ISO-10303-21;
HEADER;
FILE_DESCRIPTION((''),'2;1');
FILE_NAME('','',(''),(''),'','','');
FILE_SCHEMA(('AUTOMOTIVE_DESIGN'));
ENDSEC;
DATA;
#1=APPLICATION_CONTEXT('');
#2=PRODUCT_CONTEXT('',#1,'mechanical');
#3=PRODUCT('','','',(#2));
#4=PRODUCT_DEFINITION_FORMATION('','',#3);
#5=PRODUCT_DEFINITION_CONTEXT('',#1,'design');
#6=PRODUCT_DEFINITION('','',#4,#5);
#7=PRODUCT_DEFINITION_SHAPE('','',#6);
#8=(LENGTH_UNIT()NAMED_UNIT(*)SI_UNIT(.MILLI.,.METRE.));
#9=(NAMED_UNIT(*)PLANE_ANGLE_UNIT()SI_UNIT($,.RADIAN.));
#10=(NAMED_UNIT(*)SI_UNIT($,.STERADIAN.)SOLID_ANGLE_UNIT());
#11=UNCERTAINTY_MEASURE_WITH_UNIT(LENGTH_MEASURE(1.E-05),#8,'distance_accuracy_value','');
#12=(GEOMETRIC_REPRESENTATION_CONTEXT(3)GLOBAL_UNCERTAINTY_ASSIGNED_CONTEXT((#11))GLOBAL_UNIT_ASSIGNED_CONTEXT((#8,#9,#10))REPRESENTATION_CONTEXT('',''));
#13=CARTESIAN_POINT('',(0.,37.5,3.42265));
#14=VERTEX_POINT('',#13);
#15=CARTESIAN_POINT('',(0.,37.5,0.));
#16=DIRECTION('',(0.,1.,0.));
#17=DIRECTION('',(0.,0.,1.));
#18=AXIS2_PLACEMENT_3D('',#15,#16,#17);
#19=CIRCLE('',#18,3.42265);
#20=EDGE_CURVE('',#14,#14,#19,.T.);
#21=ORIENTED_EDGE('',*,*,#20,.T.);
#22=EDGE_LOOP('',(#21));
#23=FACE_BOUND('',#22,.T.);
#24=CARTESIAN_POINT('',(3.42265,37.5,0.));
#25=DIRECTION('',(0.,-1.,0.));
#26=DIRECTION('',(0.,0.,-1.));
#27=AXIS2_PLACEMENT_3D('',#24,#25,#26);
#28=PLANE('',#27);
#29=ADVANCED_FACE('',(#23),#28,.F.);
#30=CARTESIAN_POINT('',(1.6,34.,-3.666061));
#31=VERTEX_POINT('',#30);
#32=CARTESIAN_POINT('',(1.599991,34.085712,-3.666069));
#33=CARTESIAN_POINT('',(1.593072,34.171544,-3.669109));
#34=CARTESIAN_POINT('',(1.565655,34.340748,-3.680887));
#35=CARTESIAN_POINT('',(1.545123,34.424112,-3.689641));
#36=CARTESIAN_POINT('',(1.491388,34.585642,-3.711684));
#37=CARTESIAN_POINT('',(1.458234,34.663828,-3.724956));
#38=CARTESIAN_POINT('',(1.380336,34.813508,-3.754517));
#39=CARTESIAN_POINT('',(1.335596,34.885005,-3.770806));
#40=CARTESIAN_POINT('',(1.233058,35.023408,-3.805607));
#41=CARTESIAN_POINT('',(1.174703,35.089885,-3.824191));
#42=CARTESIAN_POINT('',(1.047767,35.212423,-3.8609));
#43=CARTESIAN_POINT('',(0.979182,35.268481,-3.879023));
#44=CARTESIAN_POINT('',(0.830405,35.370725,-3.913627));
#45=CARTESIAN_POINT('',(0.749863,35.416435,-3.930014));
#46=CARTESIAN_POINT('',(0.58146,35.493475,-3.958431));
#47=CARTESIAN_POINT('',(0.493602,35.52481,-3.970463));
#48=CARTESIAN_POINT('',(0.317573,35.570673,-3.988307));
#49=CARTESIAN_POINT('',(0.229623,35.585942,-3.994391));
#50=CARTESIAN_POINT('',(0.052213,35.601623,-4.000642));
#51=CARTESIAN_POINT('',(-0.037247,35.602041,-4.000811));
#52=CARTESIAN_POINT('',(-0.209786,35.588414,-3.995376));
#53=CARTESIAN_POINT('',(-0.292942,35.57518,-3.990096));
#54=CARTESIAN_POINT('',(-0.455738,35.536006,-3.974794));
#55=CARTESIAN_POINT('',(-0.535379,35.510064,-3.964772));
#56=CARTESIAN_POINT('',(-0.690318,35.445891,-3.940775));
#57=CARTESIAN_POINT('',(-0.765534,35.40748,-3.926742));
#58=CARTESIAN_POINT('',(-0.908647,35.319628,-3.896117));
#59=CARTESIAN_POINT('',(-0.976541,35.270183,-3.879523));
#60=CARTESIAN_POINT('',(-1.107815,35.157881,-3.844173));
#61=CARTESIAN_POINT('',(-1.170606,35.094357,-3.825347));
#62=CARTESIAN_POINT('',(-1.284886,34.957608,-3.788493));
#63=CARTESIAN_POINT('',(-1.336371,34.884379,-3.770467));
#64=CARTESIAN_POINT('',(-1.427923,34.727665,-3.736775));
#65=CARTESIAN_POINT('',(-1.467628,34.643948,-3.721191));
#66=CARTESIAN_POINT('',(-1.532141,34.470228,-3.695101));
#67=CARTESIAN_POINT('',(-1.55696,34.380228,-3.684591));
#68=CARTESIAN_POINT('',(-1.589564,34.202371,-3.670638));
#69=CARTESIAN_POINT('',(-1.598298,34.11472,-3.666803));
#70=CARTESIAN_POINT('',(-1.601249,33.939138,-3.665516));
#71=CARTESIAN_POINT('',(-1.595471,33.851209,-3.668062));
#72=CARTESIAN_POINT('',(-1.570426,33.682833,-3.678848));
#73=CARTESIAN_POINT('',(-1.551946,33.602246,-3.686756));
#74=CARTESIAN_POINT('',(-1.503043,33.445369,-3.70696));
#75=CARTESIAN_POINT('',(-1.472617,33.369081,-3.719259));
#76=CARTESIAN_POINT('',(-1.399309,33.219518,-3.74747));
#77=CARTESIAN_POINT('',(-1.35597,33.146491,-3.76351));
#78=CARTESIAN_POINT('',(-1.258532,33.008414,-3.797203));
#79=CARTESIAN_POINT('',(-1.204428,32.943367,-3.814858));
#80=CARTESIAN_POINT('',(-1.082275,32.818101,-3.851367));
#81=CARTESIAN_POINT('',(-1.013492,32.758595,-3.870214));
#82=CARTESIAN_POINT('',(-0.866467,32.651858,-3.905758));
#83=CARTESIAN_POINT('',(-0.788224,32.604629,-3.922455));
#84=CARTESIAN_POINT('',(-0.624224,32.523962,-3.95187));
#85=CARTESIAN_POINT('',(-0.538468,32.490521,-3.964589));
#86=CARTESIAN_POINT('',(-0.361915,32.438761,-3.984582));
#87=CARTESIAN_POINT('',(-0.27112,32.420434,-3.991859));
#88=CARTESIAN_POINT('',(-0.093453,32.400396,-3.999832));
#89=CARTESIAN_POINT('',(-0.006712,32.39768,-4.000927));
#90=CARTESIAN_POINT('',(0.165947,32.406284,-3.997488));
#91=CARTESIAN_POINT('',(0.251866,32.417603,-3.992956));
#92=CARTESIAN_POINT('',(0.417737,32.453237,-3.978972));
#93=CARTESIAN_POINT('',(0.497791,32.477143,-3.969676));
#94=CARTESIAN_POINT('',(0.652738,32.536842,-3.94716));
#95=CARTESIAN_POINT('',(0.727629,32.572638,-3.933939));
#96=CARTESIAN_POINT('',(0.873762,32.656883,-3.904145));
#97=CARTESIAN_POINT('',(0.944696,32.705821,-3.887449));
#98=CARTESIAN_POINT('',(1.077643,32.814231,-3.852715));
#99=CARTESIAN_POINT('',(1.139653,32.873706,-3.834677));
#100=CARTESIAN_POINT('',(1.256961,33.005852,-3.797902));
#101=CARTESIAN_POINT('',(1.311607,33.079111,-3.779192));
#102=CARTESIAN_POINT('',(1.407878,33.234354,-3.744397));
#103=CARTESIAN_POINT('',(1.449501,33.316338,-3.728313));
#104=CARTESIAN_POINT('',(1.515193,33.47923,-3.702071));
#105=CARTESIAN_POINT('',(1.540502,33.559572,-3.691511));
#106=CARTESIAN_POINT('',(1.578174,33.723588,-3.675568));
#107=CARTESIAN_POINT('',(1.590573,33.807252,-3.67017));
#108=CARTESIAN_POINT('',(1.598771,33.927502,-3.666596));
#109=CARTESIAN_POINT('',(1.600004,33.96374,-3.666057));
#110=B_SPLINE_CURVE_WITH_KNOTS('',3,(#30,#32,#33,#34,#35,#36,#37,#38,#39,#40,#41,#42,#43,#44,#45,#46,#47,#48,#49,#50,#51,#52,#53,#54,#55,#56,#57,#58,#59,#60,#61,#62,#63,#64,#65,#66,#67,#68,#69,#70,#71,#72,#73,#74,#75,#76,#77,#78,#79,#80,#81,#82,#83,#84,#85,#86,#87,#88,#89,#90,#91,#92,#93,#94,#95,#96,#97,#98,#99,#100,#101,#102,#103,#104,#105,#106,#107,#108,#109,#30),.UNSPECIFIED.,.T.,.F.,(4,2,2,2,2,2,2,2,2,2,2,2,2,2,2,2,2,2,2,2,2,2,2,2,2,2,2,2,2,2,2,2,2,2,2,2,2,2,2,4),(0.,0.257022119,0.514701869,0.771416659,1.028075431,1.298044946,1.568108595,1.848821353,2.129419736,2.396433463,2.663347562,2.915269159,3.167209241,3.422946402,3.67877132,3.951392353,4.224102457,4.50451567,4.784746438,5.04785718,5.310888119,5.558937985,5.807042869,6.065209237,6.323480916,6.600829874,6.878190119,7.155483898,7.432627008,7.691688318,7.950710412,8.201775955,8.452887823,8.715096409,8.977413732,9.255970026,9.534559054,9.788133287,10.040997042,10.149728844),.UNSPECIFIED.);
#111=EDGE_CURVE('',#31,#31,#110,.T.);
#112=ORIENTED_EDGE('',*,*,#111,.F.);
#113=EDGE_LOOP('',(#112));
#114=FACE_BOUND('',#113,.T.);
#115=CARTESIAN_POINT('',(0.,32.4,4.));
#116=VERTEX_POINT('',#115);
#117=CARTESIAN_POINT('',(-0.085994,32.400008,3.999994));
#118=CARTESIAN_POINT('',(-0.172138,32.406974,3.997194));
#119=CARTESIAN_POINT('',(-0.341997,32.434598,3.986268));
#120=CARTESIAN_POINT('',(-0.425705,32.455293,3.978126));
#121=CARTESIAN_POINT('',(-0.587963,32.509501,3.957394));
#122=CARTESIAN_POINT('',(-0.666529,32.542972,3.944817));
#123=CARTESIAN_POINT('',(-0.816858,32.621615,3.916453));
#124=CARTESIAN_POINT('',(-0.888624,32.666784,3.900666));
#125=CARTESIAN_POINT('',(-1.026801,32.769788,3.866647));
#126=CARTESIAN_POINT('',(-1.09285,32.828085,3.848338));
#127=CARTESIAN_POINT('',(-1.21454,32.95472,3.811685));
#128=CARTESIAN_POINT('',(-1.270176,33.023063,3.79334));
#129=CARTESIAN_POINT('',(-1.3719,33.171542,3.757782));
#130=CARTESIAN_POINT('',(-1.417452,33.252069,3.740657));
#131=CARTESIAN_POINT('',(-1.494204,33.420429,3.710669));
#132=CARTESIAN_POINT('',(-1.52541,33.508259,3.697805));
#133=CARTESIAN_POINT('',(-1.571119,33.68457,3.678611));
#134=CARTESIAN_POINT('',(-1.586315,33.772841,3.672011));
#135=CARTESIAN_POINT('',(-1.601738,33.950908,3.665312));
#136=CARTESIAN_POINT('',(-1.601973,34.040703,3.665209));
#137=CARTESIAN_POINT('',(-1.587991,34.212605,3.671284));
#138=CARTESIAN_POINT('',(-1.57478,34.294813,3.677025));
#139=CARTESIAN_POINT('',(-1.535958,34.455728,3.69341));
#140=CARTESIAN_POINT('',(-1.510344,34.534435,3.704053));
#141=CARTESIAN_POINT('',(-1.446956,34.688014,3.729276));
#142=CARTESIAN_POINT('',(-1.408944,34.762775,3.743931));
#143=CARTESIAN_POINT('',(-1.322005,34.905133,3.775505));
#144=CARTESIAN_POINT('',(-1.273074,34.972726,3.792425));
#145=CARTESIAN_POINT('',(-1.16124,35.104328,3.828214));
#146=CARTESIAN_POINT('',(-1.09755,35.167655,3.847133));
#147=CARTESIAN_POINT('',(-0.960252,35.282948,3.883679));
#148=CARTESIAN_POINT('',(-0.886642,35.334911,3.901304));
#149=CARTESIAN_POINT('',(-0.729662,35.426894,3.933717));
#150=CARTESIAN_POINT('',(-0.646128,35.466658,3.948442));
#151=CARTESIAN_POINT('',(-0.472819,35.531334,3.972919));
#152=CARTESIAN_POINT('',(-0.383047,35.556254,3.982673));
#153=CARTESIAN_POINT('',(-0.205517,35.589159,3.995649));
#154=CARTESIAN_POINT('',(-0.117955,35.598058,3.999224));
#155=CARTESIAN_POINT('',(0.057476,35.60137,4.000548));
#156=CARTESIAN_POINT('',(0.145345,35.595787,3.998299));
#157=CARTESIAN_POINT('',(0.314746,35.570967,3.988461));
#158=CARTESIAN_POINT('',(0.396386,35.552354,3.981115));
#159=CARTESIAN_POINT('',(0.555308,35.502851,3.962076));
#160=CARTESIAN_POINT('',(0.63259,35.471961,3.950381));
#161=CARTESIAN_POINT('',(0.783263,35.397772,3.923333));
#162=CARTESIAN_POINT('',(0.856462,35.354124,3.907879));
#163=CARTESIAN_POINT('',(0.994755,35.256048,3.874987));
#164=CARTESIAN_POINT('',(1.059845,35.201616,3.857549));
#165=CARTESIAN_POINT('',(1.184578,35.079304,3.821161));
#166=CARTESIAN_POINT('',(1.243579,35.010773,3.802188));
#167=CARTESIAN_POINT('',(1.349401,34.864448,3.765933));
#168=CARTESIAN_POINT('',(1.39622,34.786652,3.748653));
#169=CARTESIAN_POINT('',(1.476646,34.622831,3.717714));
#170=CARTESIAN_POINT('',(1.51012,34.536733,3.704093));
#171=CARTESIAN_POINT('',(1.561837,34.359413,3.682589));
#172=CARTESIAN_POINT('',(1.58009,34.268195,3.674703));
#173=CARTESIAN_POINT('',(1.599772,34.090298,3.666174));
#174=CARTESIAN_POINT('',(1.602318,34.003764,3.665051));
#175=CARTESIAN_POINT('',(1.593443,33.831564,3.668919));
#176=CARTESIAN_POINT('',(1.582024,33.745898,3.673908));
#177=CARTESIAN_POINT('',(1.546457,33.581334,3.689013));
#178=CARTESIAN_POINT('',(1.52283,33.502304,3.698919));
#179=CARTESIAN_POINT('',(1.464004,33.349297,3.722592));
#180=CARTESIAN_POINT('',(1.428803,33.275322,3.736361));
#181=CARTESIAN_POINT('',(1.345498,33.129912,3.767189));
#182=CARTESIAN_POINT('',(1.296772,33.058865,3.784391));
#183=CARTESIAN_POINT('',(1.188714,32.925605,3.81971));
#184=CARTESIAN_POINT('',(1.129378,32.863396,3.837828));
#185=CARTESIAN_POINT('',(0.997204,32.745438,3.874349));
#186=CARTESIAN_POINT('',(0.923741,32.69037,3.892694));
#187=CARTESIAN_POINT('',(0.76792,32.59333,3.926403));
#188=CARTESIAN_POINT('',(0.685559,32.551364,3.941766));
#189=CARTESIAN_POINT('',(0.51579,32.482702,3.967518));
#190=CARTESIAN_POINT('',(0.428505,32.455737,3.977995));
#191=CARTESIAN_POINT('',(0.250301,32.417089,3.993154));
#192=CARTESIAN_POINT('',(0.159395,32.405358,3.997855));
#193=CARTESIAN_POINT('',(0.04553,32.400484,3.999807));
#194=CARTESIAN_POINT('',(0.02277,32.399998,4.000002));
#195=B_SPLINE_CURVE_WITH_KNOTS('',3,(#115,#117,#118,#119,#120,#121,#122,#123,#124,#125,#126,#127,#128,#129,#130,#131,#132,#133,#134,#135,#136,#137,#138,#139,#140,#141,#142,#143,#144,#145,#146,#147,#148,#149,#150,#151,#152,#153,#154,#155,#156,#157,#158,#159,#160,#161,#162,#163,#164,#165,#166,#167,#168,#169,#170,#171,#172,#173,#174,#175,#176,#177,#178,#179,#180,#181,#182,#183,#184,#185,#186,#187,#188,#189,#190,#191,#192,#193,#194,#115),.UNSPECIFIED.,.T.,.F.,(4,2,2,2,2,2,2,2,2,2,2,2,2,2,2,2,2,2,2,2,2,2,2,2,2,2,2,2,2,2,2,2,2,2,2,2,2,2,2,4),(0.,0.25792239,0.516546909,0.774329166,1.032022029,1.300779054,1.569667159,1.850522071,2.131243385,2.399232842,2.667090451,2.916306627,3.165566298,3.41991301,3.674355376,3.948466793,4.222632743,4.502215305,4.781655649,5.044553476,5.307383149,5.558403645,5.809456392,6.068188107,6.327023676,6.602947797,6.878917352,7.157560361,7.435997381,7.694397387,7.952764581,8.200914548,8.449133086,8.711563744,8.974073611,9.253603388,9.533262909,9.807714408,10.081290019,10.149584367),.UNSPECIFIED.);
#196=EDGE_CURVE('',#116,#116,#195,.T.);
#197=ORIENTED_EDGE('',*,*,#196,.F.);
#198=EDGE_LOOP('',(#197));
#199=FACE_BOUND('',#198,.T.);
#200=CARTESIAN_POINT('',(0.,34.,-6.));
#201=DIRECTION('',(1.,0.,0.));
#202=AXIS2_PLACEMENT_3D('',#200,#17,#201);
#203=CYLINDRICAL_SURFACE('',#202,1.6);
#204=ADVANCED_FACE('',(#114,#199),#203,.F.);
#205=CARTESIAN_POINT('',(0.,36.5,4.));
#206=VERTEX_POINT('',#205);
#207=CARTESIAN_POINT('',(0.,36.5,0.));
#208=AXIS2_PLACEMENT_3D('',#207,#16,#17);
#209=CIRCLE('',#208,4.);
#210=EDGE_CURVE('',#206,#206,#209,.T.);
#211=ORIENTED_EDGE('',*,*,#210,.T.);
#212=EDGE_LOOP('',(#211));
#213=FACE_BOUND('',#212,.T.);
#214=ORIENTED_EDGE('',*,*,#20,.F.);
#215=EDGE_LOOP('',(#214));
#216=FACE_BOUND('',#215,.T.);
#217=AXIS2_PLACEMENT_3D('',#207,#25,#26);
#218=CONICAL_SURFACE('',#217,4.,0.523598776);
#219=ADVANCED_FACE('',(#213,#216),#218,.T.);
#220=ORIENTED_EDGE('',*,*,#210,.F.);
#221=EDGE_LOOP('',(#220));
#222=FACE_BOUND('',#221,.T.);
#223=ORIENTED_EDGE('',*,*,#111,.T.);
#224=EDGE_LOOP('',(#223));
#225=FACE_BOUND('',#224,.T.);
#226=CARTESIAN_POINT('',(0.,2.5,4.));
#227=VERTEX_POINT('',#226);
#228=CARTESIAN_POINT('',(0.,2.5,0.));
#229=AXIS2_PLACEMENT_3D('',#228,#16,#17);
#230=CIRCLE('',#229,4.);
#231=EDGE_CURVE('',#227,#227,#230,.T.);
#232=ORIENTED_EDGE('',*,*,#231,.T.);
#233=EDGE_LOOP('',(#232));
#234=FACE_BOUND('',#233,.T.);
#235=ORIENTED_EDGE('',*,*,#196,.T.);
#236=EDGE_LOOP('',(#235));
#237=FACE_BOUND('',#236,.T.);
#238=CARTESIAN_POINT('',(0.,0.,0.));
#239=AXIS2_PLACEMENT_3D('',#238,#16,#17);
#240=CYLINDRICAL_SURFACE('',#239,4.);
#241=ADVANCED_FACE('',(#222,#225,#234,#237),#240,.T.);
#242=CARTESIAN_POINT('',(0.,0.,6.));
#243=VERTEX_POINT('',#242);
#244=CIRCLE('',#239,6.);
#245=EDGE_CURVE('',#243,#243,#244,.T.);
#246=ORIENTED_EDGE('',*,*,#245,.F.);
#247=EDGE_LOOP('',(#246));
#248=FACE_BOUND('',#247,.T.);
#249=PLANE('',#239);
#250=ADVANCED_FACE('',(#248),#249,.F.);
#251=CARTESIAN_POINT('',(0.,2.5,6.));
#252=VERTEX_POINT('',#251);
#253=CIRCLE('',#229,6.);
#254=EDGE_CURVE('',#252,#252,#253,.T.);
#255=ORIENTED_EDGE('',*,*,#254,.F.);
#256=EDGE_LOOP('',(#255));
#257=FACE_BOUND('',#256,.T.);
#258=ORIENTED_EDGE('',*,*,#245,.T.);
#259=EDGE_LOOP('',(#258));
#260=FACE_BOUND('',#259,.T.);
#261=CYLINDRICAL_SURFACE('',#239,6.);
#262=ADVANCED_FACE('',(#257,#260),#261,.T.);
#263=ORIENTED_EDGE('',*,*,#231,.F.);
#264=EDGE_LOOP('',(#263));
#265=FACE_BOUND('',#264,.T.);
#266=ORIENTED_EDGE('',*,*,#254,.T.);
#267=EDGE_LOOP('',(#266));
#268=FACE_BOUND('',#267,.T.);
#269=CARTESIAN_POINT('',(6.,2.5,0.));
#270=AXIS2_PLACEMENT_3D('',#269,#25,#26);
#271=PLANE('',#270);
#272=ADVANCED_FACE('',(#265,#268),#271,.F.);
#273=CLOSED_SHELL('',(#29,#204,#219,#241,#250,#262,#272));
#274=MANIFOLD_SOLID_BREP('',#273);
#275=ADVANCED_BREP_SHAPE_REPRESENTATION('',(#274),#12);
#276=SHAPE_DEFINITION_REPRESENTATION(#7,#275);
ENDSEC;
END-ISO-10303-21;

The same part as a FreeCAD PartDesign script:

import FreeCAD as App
import Part
import Sketcher
from FreeCAD import Vector
Q = App.Units.Quantity

doc = App.newDocument("Part")
body = doc.addObject("PartDesign::Body", "Body")

# Sketch on XY plane
sketch1 = body.newObject("Sketcher::SketchObject", "Sketch")
sketch1.AttachmentSupport = (doc.getObject("XY_Plane"), [""])
sketch1.MapMode = "FlatFace"
sketch1.addGeometry(Part.LineSegment(Vector(0, 0, 0), Vector(6, 0, 0)), False)
sketch1.addGeometry(Part.LineSegment(Vector(6, 0, 0), Vector(6, 2.5, 0)), False)
sketch1.addGeometry(Part.LineSegment(Vector(6, 2.5, 0), Vector(4, 2.5, 0)), False)
sketch1.addGeometry(Part.LineSegment(Vector(4, 2.5, 0), Vector(4, 36.5, 0)), False)
sketch1.addGeometry(Part.LineSegment(Vector(4, 36.5, 0), Vector(3.42265, 37.5, 0)), False)
sketch1.addGeometry(Part.LineSegment(Vector(3.42265, 37.5, 0), Vector(0, 37.5, 0)), False)
sketch1.addGeometry(Part.LineSegment(Vector(0, 37.5, 0), Vector(0, 0, 0)), False)
sketch1.addConstraint(Sketcher.Constraint("Coincident", 0, 2, 1, 1))
sketch1.addConstraint(Sketcher.Constraint("Coincident", 1, 2, 2, 1))
sketch1.addConstraint(Sketcher.Constraint("Coincident", 2, 2, 3, 1))
sketch1.addConstraint(Sketcher.Constraint("Coincident", 3, 2, 4, 1))
sketch1.addConstraint(Sketcher.Constraint("Coincident", 4, 2, 5, 1))
sketch1.addConstraint(Sketcher.Constraint("Coincident", 5, 2, 6, 1))
sketch1.addConstraint(Sketcher.Constraint("Coincident", 6, 2, 0, 1))
sketch1.addConstraint(Sketcher.Constraint("Horizontal", 0))
sketch1.addConstraint(Sketcher.Constraint("Vertical", 1))
sketch1.addConstraint(Sketcher.Constraint("Horizontal", 2))
sketch1.addConstraint(Sketcher.Constraint("Vertical", 3))
sketch1.addConstraint(Sketcher.Constraint("Horizontal", 5))
sketch1.addConstraint(Sketcher.Constraint("Vertical", 6))
sketch1.addConstraint(Sketcher.Constraint("Coincident", 6, 2, -1, 1))
sketch1.addConstraint(Sketcher.Constraint("DistanceX", 0, 1, 0, 2, 6.0))
sketch1.addConstraint(Sketcher.Constraint("DistanceX", 2, 2, 2, 1, 2.0))
sketch1.addConstraint(Sketcher.Constraint("DistanceY", 3, 1, 3, 2, 34.0))
sketch1.addConstraint(Sketcher.Constraint("Angle", 4, Q("120 deg")))
sketch1.addConstraint(Sketcher.Constraint("DistanceY", 1, 1, 1, 2, 2.5))
sketch1.addConstraint(Sketcher.Constraint("DistanceY", 6, 2, 6, 1, 37.5))
revolution = body.newObject("PartDesign::Revolution", "Revolution")
revolution.Profile = sketch1
revolution.ReferenceAxis = (sketch1, ["V_Axis"])
revolution.Angle = 360

# Sketch on XY plane
sketch2 = body.newObject("Sketcher::SketchObject", "Sketch001")
sketch2.AttachmentSupport = (doc.getObject("XY_Plane"), [""])
sketch2.MapMode = "FlatFace"
sketch2.addGeometry(Part.Circle(Vector(0, 34, 0), Vector(0, 0, 1), 1.6), False)
sketch2.addConstraint(Sketcher.Constraint("PointOnObject", 0, 3, -2))
sketch2.addConstraint(Sketcher.Constraint("Diameter", 0, 3.2))
sketch2.addConstraint(Sketcher.Constraint("DistanceY", -1, 1, 0, 3, 34.0))
pocket1 = body.newObject("PartDesign::Pocket", "Pocket")
pocket1.Profile = sketch2
pocket1.Type = "ThroughAll"
pocket1.Midplane = True

doc.recompute()
